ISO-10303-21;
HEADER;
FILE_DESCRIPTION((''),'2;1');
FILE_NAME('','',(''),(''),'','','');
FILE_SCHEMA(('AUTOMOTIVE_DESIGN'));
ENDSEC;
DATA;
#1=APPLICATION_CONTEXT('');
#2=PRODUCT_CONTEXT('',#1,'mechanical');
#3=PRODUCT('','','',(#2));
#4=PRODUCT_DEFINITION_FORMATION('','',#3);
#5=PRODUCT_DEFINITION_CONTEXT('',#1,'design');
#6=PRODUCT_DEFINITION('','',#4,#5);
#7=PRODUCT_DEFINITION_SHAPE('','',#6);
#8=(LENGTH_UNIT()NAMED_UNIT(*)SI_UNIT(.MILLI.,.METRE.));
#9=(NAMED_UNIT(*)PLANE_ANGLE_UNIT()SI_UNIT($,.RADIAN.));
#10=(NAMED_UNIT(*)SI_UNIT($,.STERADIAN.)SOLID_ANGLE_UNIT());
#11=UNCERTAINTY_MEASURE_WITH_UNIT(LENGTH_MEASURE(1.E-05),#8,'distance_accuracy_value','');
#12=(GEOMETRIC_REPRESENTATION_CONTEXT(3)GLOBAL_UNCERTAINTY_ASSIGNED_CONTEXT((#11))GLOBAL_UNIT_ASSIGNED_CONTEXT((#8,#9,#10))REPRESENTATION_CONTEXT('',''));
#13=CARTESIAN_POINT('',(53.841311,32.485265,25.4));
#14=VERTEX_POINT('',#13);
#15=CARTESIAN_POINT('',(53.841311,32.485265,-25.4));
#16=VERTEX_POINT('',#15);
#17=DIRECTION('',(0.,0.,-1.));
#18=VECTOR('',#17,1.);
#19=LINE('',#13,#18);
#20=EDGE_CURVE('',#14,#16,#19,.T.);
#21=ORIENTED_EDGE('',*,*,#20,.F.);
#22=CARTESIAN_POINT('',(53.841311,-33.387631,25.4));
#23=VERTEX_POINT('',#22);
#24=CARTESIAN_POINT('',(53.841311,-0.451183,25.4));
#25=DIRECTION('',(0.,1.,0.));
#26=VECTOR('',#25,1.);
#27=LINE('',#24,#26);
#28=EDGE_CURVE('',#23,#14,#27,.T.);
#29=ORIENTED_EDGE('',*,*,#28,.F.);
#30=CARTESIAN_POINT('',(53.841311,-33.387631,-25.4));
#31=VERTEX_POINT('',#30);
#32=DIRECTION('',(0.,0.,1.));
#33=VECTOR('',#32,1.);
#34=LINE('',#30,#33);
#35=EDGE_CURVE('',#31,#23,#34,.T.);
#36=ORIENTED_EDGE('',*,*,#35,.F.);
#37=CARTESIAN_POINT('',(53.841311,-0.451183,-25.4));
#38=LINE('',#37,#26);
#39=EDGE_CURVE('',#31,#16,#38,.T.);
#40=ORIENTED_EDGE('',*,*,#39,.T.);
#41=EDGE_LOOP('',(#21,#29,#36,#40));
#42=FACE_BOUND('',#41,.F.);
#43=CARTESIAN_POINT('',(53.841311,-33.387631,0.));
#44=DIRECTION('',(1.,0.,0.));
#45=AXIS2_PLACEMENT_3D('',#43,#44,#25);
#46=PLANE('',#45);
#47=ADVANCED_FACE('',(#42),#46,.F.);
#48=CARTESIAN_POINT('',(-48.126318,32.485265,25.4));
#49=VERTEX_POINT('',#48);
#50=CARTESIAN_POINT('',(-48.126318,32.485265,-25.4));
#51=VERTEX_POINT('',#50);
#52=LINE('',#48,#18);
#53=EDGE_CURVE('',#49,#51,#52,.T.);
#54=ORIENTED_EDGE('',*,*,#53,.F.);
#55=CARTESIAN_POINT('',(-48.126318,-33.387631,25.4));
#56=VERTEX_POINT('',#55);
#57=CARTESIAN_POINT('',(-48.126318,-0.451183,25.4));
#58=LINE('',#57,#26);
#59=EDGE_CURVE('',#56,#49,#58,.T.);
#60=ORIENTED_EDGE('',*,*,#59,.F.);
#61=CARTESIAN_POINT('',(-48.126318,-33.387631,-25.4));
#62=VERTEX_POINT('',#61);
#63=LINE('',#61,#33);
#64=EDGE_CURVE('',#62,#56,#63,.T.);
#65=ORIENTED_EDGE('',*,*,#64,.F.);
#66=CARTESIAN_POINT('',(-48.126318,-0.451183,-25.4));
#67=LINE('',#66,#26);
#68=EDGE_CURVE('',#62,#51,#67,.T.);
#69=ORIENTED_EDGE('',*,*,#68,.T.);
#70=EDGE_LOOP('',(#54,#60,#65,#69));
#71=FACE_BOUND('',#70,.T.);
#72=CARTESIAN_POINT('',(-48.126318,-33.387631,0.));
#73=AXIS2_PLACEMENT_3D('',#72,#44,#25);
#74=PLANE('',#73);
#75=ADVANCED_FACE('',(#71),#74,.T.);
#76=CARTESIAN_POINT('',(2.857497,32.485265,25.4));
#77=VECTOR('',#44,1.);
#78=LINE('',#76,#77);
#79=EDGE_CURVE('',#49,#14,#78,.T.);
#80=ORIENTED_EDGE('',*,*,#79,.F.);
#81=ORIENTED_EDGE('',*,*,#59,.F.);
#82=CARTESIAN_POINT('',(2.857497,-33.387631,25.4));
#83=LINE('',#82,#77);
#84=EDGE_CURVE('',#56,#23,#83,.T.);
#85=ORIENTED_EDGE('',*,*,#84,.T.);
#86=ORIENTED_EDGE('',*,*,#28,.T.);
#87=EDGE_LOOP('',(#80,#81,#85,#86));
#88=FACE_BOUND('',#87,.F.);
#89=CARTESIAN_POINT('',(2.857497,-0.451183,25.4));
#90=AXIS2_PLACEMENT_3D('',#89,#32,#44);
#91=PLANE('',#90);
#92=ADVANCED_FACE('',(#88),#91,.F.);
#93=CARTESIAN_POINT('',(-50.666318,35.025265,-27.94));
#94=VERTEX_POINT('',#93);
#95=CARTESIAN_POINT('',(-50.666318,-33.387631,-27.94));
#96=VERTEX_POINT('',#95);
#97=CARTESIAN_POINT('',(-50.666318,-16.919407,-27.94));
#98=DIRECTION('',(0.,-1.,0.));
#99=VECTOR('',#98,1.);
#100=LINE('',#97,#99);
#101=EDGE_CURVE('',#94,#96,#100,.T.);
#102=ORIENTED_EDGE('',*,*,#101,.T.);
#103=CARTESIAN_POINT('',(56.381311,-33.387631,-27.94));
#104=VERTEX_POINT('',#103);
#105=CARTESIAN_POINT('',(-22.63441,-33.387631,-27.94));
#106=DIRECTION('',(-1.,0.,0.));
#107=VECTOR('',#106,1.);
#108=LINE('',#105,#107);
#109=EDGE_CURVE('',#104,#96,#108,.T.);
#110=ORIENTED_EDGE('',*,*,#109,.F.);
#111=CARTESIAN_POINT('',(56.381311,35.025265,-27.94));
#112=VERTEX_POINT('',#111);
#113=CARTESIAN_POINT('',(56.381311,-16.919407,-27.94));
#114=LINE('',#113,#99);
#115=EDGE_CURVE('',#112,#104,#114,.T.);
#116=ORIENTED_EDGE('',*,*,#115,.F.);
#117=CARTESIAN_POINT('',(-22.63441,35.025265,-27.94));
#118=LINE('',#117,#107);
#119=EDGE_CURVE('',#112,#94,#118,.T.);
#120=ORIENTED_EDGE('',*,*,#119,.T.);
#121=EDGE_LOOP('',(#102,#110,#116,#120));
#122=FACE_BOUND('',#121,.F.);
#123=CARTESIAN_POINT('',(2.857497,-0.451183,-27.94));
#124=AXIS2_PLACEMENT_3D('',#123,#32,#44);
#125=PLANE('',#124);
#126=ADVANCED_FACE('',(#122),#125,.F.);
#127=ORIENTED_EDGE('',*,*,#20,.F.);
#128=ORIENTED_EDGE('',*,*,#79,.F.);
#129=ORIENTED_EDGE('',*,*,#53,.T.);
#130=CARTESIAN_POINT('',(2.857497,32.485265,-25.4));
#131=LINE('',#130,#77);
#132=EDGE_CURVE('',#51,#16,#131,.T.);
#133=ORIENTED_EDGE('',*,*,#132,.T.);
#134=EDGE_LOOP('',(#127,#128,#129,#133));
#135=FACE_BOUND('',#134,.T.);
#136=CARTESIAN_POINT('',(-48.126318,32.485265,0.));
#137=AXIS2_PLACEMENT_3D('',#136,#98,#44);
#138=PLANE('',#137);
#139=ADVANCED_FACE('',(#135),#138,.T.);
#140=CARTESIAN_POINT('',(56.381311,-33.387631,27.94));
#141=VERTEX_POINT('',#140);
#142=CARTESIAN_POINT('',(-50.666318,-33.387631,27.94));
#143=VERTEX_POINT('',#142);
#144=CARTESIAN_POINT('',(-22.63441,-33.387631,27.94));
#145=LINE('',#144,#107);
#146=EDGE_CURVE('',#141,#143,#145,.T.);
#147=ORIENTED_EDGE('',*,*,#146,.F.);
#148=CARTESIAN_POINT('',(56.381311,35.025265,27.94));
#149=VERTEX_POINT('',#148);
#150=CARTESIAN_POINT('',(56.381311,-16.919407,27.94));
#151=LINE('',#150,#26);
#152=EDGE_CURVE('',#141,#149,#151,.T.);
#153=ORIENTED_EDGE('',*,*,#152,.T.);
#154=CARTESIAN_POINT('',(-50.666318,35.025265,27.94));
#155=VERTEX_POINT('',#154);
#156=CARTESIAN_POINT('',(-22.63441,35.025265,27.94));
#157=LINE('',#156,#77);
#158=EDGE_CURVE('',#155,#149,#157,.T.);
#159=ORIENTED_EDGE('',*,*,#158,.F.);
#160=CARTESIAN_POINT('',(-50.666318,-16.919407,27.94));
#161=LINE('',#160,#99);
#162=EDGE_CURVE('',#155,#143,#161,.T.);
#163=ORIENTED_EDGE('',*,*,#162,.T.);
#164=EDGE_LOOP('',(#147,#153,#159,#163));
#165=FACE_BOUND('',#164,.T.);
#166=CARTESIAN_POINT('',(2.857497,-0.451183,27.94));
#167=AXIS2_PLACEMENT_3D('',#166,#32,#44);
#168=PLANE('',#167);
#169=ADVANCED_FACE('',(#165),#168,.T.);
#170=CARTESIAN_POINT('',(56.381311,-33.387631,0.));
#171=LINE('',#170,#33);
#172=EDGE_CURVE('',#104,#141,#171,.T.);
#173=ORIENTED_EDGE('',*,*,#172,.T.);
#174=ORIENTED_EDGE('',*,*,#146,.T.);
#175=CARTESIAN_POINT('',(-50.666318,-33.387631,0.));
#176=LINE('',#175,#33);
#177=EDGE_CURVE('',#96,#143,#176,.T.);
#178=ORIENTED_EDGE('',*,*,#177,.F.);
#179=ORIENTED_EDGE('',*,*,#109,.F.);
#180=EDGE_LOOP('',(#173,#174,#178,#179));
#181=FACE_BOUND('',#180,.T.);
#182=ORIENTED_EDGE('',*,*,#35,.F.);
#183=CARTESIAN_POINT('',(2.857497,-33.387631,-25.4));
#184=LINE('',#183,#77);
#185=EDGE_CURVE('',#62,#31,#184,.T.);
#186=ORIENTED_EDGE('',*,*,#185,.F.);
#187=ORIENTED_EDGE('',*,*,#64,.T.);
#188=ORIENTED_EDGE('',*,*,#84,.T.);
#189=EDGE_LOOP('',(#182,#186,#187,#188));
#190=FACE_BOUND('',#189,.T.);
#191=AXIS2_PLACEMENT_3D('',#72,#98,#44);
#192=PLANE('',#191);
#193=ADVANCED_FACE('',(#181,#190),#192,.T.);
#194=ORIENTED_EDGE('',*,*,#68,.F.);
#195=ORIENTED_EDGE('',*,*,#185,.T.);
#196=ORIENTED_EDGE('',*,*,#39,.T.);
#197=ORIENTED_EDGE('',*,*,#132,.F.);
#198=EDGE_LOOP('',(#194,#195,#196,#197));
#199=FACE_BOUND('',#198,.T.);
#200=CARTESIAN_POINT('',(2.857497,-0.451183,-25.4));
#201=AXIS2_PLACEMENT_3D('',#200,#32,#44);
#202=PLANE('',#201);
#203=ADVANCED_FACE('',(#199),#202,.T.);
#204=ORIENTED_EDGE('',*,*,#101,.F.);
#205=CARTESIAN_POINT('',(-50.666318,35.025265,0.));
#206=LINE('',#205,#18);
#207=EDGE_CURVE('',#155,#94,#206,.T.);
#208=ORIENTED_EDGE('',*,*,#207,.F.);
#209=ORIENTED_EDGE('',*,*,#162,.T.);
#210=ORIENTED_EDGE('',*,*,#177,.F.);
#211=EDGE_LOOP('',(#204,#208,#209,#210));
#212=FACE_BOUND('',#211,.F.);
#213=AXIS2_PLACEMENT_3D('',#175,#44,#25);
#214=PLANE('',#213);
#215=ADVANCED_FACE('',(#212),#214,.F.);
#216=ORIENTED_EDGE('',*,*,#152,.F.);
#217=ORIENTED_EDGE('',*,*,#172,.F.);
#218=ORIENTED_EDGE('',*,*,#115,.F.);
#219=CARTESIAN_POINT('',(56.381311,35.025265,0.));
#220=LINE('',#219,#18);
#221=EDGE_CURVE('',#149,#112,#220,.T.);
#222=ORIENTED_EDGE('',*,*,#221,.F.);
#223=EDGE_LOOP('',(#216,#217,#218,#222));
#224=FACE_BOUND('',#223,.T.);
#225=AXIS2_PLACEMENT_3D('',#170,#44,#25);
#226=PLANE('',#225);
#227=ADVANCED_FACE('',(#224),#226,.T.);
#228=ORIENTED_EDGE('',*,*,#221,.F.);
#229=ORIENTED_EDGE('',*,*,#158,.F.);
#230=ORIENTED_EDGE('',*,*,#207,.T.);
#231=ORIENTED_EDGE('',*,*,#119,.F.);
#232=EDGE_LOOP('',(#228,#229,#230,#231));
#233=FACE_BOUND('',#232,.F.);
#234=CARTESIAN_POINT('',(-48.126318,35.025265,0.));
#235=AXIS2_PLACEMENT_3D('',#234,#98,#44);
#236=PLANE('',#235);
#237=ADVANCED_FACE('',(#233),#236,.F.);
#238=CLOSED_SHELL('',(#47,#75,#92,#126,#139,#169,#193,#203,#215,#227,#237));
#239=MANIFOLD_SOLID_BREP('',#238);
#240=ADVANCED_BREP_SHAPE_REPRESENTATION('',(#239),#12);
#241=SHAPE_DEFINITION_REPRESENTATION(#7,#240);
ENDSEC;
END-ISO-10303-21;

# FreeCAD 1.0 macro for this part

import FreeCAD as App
import Part
import Sketcher
from FreeCAD import Vector
Q = App.Units.Quantity


def faces_at(feature, points):
    """Names of the faces that lie closest to the given points."""
    faces = feature.Shape.Faces
    near = lambda p: min(range(len(faces)), key=lambda i: faces[i].distToShape(Part.Vertex(*p))[0])
    return sorted({f"Face{near(p) + 1}" for p in points})


def add_polygon(sketch, points):
    """Adds a closed chain of lines whose ends are joined by coincident constraints."""
    first, n = sketch.GeometryCount, len(points)
    for a, b in zip(points, points[1:] + points[:1]):
        sketch.addGeometry(Part.LineSegment(App.Vector(*a, 0), App.Vector(*b, 0)), False)
    for i in range(n):
        sketch.addConstraint(Sketcher.Constraint("Coincident", first + i, 2, first + (i + 1) % n, 1))

doc = App.newDocument("Part")
body = doc.addObject("PartDesign::Body", "Body")

sketch1 = body.newObject("Sketcher::SketchObject", "Sketch")
sketch1.AttachmentSupport = (doc.getObject("XY_Plane"), [""])
sketch1.MapMode = "FlatFace"
add_polygon(sketch1, [(-48.126318, 32.485265), (-48.126318, -33.387631), (53.841311, -33.387631), (53.841311, 32.485265)])
sketch1.addConstraint([
    Sketcher.Constraint("Vertical", 0),
    Sketcher.Constraint("Horizontal", 1),
    Sketcher.Constraint("Vertical", 2),
    Sketcher.Constraint("Horizontal", 3),
    Sketcher.Constraint("DistanceX", 1, 1, 1, 2, Q("101.967629 mm")),
    Sketcher.Constraint("DistanceY", 0, 2, 0, 1, Q("65.872896 mm")),
    Sketcher.Constraint("DistanceY", 0, 2, -1, 1, Q("33.387631 mm")),
    Sketcher.Constraint("DistanceX", -1, 1, 1, 2, Q("53.841311 mm")),
])
pad1 = body.newObject("PartDesign::Pad", "Pad")
pad1.Profile = sketch1
pad1.Length = Q("2 in")
pad1.Midplane = True
doc.recompute()

thickness = body.newObject("PartDesign::Thickness", "Thickness")
thickness.Base = (pad1, faces_at(pad1, [(2.857, -33.388, 0)]))
thickness.Value = Q("0.1 in")
thickness.Reversed = False
thickness.Join = "Intersection"

doc.recompute()
